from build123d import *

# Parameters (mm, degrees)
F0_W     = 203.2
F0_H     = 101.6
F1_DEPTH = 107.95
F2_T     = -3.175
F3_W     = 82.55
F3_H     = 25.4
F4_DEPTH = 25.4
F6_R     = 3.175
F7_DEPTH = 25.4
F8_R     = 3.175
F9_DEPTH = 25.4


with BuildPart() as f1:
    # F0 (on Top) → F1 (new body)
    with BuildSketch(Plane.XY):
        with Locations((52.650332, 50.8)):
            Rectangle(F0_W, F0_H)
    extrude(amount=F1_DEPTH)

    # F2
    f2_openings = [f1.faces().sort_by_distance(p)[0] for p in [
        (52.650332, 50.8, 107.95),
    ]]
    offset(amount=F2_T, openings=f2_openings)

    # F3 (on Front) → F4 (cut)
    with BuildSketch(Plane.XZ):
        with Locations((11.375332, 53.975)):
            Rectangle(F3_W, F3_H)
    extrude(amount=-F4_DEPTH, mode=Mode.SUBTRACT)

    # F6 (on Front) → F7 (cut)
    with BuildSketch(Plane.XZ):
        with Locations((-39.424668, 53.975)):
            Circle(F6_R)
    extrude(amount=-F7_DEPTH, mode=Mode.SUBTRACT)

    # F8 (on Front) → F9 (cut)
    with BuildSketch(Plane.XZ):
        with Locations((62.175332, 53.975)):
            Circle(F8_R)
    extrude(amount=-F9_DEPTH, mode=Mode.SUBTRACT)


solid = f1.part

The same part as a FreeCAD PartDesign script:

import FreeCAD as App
import Part
import Sketcher

V = App.Vector
Q = App.Units.Quantity


def faces_at(feature, points):
    """Names of the faces that lie closest to the given points."""
    faces = feature.Shape.Faces
    near = lambda p: min(range(len(faces)), key=lambda i: faces[i].distToShape(Part.Vertex(*p))[0])
    return sorted({f"Face{near(p) + 1}" for p in points})

doc = App.newDocument("Part")
body = doc.addObject("PartDesign::Body", "Body")

# Sketch on XY plane
sketch1 = body.newObject("Sketcher::SketchObject", "Sketch")
sketch1.AttachmentSupport = (doc.getObject("XY_Plane"), [""])
sketch1.MapMode = "FlatFace"
sketch1.addGeometry([
    Part.LineSegment(V(-49, 102, 0), V(-49, 0, 0)),
    Part.LineSegment(V(-49, 0, 0), V(154, 0, 0)),
    Part.LineSegment(V(154, 0, 0), V(154, 102, 0)),
    Part.LineSegment(V(154, 102, 0), V(-49, 102, 0)),
], False)
sketch1.addConstraint([
    Sketcher.Constraint("Coincident", 0, 2, 1, 1),
    Sketcher.Constraint("Coincident", 1, 2, 2, 1),
    Sketcher.Constraint("Coincident", 2, 2, 3, 1),
    Sketcher.Constraint("Coincident", 3, 2, 0, 1),
    Sketcher.Constraint("Vertical", 0),
    Sketcher.Constraint("Horizontal", 1),
    Sketcher.Constraint("Vertical", 2),
    Sketcher.Constraint("Horizontal", 3),
    Sketcher.Constraint("PointOnObject", 0, 2, -1),
    Sketcher.Constraint("DistanceX", 1, 1, 1, 2, Q("8 in")),
    Sketcher.Constraint("DistanceY", 0, 2, 0, 1, Q("4 in")),
    Sketcher.Constraint("DistanceX", 0, 2, -1, 1, 48.949668),
])
pad1 = body.newObject("PartDesign::Pad", "Pad")
pad1.Profile = sketch1
pad1.Length = Q("4.25 in")
doc.recompute()

thickness = body.newObject("PartDesign::Thickness", "Thickness")
thickness.Base = (pad1, faces_at(pad1, [(52.65, 50.8, 107.95)]))
thickness.Value = Q("0.125 in")
thickness.Reversed = True
thickness.Join = "Arc"

# Sketch on XZ plane
sketch2 = body.newObject("Sketcher::SketchObject", "Sketch001")
sketch2.AttachmentSupport = (doc.getObject("XZ_Plane"), [""])
sketch2.MapMode = "FlatFace"
sketch2.addGeometry([
    Part.LineSegment(V(-30, 67, 0), V(-30, 41, 0)),
    Part.LineSegment(V(-30, 41, 0), V(53, 41, 0)),
    Part.LineSegment(V(53, 41, 0), V(53, 67, 0)),
    Part.LineSegment(V(53, 67, 0), V(-30, 67, 0)),
], False)
sketch2.addConstraint([
    Sketcher.Constraint("Coincident", 0, 2, 1, 1),
    Sketcher.Constraint("Coincident", 1, 2, 2, 1),
    Sketcher.Constraint("Coincident", 2, 2, 3, 1),
    Sketcher.Constraint("Coincident", 3, 2, 0, 1),
    Sketcher.Constraint("Vertical", 0),
    Sketcher.Constraint("Horizontal", 1),
    Sketcher.Constraint("Vertical", 2),
    Sketcher.Constraint("Horizontal", 3),
    Sketcher.Constraint("DistanceY", 0, 2, 0, 1, Q("1 in")),
    Sketcher.Constraint("DistanceX", 1, 1, 1, 2, Q("3.25 in")),
    Sketcher.Constraint("DistanceY", -1, 1, 0, 2, Q("1.625 in")),
    Sketcher.Constraint("DistanceX", 0, 2, -1, 1, 29.899668),
])
pocket1 = body.newObject("PartDesign::Pocket", "Pocket")
pocket1.Profile = sketch2
pocket1.Length = Q("1 in")

# Sketch on XZ plane
sketch3 = body.newObject("Sketcher::SketchObject", "Sketch002")
sketch3.AttachmentSupport = (doc.getObject("XZ_Plane"), [""])
sketch3.MapMode = "FlatFace"
sketch3.addGeometry(Part.Circle(V(-39.4, 54, 0), V(0, 0, 1), 3.2), False)
sketch3.addConstraint([
    Sketcher.Constraint("Diameter", 0, Q("0.25 in")),
    Sketcher.Constraint("DistanceY", -1, 1, 0, 3, Q("2.125 in")),
    Sketcher.Constraint("DistanceX", 0, 3, -1, 1, 39.424668),
])
pocket2 = body.newObject("PartDesign::Pocket", "Pocket001")
pocket2.Profile = sketch3
pocket2.Length = Q("1 in")

# Sketch on XZ plane
sketch4 = body.newObject("Sketcher::SketchObject", "Sketch003")
sketch4.AttachmentSupport = (doc.getObject("XZ_Plane"), [""])
sketch4.MapMode = "FlatFace"
sketch4.addGeometry(Part.Circle(V(62.2, 54, 0), V(0, 0, 1), 3.2), False)
sketch4.addConstraint([
    Sketcher.Constraint("Diameter", 0, Q("0.25 in")),
    Sketcher.Constraint("DistanceY", -1, 1, 0, 3, Q("2.125 in")),
    Sketcher.Constraint("DistanceX", -1, 1, 0, 3, 62.175332),
])
pocket3 = body.newObject("PartDesign::Pocket", "Pocket002")
pocket3.Profile = sketch4
pocket3.Length = Q("1 in")

doc.recompute()
